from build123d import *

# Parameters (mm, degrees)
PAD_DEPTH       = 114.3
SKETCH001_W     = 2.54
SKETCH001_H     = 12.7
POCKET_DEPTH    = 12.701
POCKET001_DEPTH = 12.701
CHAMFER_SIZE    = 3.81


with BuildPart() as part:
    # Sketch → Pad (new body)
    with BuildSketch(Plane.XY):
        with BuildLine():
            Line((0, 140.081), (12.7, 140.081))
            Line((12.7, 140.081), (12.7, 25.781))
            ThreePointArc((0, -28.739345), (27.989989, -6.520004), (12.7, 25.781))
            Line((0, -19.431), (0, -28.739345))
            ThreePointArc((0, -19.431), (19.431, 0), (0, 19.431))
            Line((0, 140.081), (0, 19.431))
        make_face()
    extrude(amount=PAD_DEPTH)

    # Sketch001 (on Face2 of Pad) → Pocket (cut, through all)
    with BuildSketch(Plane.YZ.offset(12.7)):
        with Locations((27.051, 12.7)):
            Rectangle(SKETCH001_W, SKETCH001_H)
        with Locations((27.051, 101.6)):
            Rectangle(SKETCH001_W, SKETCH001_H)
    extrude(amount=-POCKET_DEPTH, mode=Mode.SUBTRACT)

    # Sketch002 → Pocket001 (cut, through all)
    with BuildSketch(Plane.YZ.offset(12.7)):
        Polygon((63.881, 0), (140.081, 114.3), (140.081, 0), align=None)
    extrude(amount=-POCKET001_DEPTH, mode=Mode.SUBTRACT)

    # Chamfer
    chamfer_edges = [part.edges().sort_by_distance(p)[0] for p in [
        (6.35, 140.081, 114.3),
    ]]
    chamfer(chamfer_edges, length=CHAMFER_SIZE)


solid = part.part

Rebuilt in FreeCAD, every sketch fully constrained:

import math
import FreeCAD as App
import Part
import Sketcher
Q = App.Units.Quantity


def edges_at(feature, points):
    """Names of the edges that pass closest to the given points."""
    edges = feature.Shape.Edges
    near = lambda p: min(range(len(edges)), key=lambda i: edges[i].distToShape(Part.Vertex(*p))[0])
    return sorted({f"Edge{near(p) + 1}" for p in points})


def add_polygon(sketch, points):
    """Adds a closed chain of lines whose ends are joined by coincident constraints."""
    first, n = sketch.GeometryCount, len(points)
    for a, b in zip(points, points[1:] + points[:1]):
        sketch.addGeometry(Part.LineSegment(App.Vector(*a, 0), App.Vector(*b, 0)), False)
    for i in range(n):
        sketch.addConstraint(Sketcher.Constraint("Coincident", first + i, 2, first + (i + 1) % n, 1))

doc = App.newDocument("Part")
body = doc.addObject("PartDesign::Body", "Body")

sketch1 = body.newObject("Sketcher::SketchObject", "Sketch")
sketch1.AttachmentSupport = (doc.getObject("XY_Plane"), [""])
sketch1.MapMode = "FlatFace"
sketch1.addGeometry([
    Part.LineSegment(App.Vector(12.7, 140.081, 0), App.Vector(0, 140.081, 0)),
    Part.LineSegment(App.Vector(0, 140.081, 0), App.Vector(0, 19.431, 0)),
    Part.ArcOfCircle(Part.Circle(App.Vector(0, 0, 0), App.Vector(0, 0, 1), 19.431), math.radians(-90), math.radians(90)),
    Part.LineSegment(App.Vector(0, -19.431, 0), App.Vector(0, -28.739345, 0)),
    Part.ArcOfCircle(Part.Circle(App.Vector(0, 0, 0), App.Vector(0, 0, 1), 28.739345), math.radians(-89.999999), math.radians(63.774642)),
    Part.LineSegment(App.Vector(12.7, 25.781, 0), App.Vector(12.7, 140.081, 0)),
], False)
sketch1.addConstraint([
    Sketcher.Constraint("Coincident", 0, 2, 1, 1),
    Sketcher.Constraint("Coincident", 1, 2, 2, 2),
    Sketcher.Constraint("Coincident", 2, 1, 3, 1),
    Sketcher.Constraint("Coincident", 3, 2, 4, 1),
    Sketcher.Constraint("Coincident", 4, 2, 5, 1),
    Sketcher.Constraint("Coincident", 5, 2, 0, 1),
    Sketcher.Constraint("Horizontal", 0),
    Sketcher.Constraint("Vertical", 1),
    Sketcher.Constraint("Vertical", 3),
    Sketcher.Constraint("Vertical", 5),
    Sketcher.Constraint("Coincident", 2, 3, -1, 1),
    Sketcher.Constraint("Coincident", 4, 3, -1, 1),
    Sketcher.Constraint("PointOnObject", 0, 2, -2),
    Sketcher.Constraint("PointOnObject", 2, 1, -2),
    Sketcher.Constraint("DistanceX", 0, 2, 0, 1, Q("0.5 in")),
    Sketcher.Constraint("DistanceY", 5, 1, 5, 2, Q("4.5 in")),
    Sketcher.Constraint("Radius", 2, Q("0.765 in")),
    Sketcher.Constraint("DistanceY", 1, 2, 1, 1, Q("4.75 in")),
])
pad1 = body.newObject("PartDesign::Pad", "Pad")
pad1.Profile = sketch1
pad1.Length = Q("4.5 in")

sketch2 = body.newObject("Sketcher::SketchObject", "Sketch001")
sketch2.AttachmentSupport = (doc.getObject("YZ_Plane"), [""])
sketch2.MapMode = "FlatFace"
sketch2.AttachmentOffset = App.Placement(App.Vector(0, 0, 0.5 * 25.4), App.Rotation())
add_polygon(sketch2, [(25.781, 19.05), (25.781, 6.35), (28.321, 6.35), (28.321, 19.05)])
add_polygon(sketch2, [(25.781, 107.95), (25.781, 95.25), (28.321, 95.25), (28.321, 107.95)])
sketch2.addConstraint([
    Sketcher.Constraint("Vertical", 0),
    Sketcher.Constraint("Horizontal", 1),
    Sketcher.Constraint("Vertical", 2),
    Sketcher.Constraint("Horizontal", 3),
    Sketcher.Constraint("Vertical", 4),
    Sketcher.Constraint("Horizontal", 5),
    Sketcher.Constraint("Vertical", 6),
    Sketcher.Constraint("Horizontal", 7),
    Sketcher.Constraint("Vertical", 3, 2, 4, 2),
    Sketcher.Constraint("Vertical", 2, 2, 5, 2),
    Sketcher.Constraint("Equal", 2, 4),
    Sketcher.Constraint("DistanceX", 1, 1, 1, 2, Q("0.1 in")),
    Sketcher.Constraint("DistanceY", 0, 2, 0, 1, Q("0.5 in")),
    Sketcher.Constraint("DistanceY", 3, 2, 4, 2, Q("3 in")),
    Sketcher.Constraint("DistanceY", -1, 1, 0, 2, Q("0.25 in")),
    Sketcher.Constraint("DistanceX", -1, 1, 0, 2, Q("1.015 in")),
])
pocket1 = body.newObject("PartDesign::Pocket", "Pocket")
pocket1.Profile = sketch2
pocket1.Type = "ThroughAll"

sketch3 = body.newObject("Sketcher::SketchObject", "Sketch002")
sketch3.AttachmentSupport = (doc.getObject("YZ_Plane"), [""])
sketch3.MapMode = "FlatFace"
sketch3.AttachmentOffset = App.Placement(App.Vector(0, 0, 0.5 * 25.4), App.Rotation())
add_polygon(sketch3, [(140.081, 114.3), (63.881, 0), (140.081, 0)])
sketch3.addConstraint([
    Sketcher.Constraint("Horizontal", 1),
    Sketcher.Constraint("Vertical", 2),
    Sketcher.Constraint("PointOnObject", 0, 2, -1),
    Sketcher.Constraint("DistanceX", 1, 1, 1, 2, Q("3 in")),
    Sketcher.Constraint("DistanceY", 2, 1, 2, 2, Q("4.5 in")),
    Sketcher.Constraint("DistanceX", -1, 1, 0, 2, Q("2.515 in")),
])
pocket2 = body.newObject("PartDesign::Pocket", "Pocket001")
pocket2.Profile = sketch3
pocket2.Type = "ThroughAll"
doc.recompute()

chamfer = body.newObject("PartDesign::Chamfer", "Chamfer")
chamfer.Base = (pocket2, edges_at(pocket2, [(6.35, 140.081, 114.3)]))
chamfer.Size = Q("0.15 in")

doc.recompute()
